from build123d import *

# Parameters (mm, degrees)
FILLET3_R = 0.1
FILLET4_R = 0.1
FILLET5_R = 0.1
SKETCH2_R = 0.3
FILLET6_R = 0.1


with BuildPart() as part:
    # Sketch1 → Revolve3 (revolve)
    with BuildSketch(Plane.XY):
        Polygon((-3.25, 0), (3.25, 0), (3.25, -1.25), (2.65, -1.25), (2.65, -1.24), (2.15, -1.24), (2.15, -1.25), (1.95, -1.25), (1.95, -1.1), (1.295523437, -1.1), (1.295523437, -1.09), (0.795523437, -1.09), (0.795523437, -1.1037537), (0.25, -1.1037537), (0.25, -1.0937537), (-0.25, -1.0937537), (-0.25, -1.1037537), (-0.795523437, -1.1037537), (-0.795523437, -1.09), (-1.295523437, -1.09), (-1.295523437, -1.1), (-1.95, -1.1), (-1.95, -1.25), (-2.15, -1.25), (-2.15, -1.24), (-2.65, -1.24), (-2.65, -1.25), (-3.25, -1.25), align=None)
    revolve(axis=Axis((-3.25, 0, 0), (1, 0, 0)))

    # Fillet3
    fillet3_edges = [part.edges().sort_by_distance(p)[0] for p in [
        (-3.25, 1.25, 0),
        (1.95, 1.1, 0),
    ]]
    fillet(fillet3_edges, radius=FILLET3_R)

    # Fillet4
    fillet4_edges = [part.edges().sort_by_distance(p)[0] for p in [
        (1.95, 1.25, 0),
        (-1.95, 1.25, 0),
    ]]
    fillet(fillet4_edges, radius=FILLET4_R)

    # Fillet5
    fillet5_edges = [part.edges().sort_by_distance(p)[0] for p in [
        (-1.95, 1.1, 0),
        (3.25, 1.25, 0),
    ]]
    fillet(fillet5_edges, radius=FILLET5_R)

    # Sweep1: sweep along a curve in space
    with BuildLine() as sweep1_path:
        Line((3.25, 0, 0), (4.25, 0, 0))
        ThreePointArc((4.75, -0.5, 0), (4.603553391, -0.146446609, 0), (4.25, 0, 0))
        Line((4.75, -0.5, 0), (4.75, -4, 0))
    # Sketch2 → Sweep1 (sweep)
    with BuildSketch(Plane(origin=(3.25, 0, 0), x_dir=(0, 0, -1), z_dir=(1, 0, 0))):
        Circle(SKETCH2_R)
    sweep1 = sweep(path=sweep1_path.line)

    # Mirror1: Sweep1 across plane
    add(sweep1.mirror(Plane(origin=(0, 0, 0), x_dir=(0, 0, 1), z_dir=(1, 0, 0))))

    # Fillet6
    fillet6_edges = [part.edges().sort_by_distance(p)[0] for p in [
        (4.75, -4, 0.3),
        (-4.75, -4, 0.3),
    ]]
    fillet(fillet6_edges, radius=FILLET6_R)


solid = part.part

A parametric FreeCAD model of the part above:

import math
import FreeCAD as App
import Part
import Sketcher
from FreeCAD import Vector
Q = App.Units.Quantity


def edges_at(feature, points):
    """Names of the edges that pass closest to the given points."""
    edges = feature.Shape.Edges
    near = lambda p: min(range(len(edges)), key=lambda i: edges[i].distToShape(Part.Vertex(*p))[0])
    return sorted({f"Edge{near(p) + 1}" for p in points})

doc = App.newDocument("Part")
body = doc.addObject("PartDesign::Body", "Body")

# Sketch on XY plane
sketch1 = body.newObject("Sketcher::SketchObject", "Sketch")
sketch1.AttachmentSupport = (doc.getObject("XY_Plane"), [""])
sketch1.MapMode = "FlatFace"
sketch1.addGeometry([
    Part.LineSegment(Vector(3.25, 0, 0), Vector(-3.25, 0, 0)),  # 0
    Part.LineSegment(Vector(-3.25, 0, 0), Vector(-3.25, -1.25, 0)),  # 1
    Part.LineSegment(Vector(-3.25, -1.25, 0), Vector(-2.65, -1.25, 0)),  # 2
    Part.LineSegment(Vector(-2.65, -1.25, 0), Vector(-2.65, -1.24, 0)),  # 3
    Part.LineSegment(Vector(-2.65, -1.24, 0), Vector(-2.15, -1.24, 0)),  # 4
    Part.LineSegment(Vector(-2.15, -1.24, 0), Vector(-2.15, -1.25, 0)),  # 5
    Part.LineSegment(Vector(-2.15, -1.25, 0), Vector(-1.95, -1.25, 0)),  # 6
    Part.LineSegment(Vector(-1.95, -1.25, 0), Vector(-1.95, -1.1, 0)),  # 7
    Part.LineSegment(Vector(-1.95, -1.1, 0), Vector(-1.296, -1.1, 0)),  # 8
    Part.LineSegment(Vector(-1.296, -1.1, 0), Vector(-1.296, -1.09, 0)),  # 9
    Part.LineSegment(Vector(-1.296, -1.09, 0), Vector(-0.796, -1.09, 0)),  # 10
    Part.LineSegment(Vector(-0.796, -1.09, 0), Vector(-0.796, -1.104, 0)),  # 11
    Part.LineSegment(Vector(-0.796, -1.104, 0), Vector(-0.25, -1.104, 0)),  # 12
    Part.LineSegment(Vector(-0.25, -1.104, 0), Vector(-0.25, -1.094, 0)),  # 13
    Part.LineSegment(Vector(-0.25, -1.094, 0), Vector(0.25, -1.094, 0)),  # 14
    Part.LineSegment(Vector(0.25, -1.094, 0), Vector(0.25, -1.104, 0)),  # 15
    Part.LineSegment(Vector(0.25, -1.104, 0), Vector(0.796, -1.104, 0)),  # 16
    Part.LineSegment(Vector(0.796, -1.104, 0), Vector(0.796, -1.09, 0)),  # 17
    Part.LineSegment(Vector(0.796, -1.09, 0), Vector(1.296, -1.09, 0)),  # 18
    Part.LineSegment(Vector(1.296, -1.09, 0), Vector(1.296, -1.1, 0)),  # 19
    Part.LineSegment(Vector(1.296, -1.1, 0), Vector(1.95, -1.1, 0)),  # 20
    Part.LineSegment(Vector(1.95, -1.1, 0), Vector(1.95, -1.25, 0)),  # 21
    Part.LineSegment(Vector(1.95, -1.25, 0), Vector(2.15, -1.25, 0)),  # 22
    Part.LineSegment(Vector(2.15, -1.25, 0), Vector(2.15, -1.24, 0)),  # 23
    Part.LineSegment(Vector(2.15, -1.24, 0), Vector(2.65, -1.24, 0)),  # 24
    Part.LineSegment(Vector(2.65, -1.24, 0), Vector(2.65, -1.25, 0)),  # 25
    Part.LineSegment(Vector(2.65, -1.25, 0), Vector(3.25, -1.25, 0)),  # 26
    Part.LineSegment(Vector(3.25, -1.25, 0), Vector(3.25, 0, 0)),  # 27
], False)
sketch1.addConstraint([
    Sketcher.Constraint("Coincident", 0, 2, 1, 1),
    Sketcher.Constraint("Coincident", 1, 2, 2, 1),
    Sketcher.Constraint("Coincident", 2, 2, 3, 1),
    Sketcher.Constraint("Coincident", 3, 2, 4, 1),
    Sketcher.Constraint("Coincident", 4, 2, 5, 1),
    Sketcher.Constraint("Coincident", 5, 2, 6, 1),
    Sketcher.Constraint("Coincident", 6, 2, 7, 1),
    Sketcher.Constraint("Coincident", 7, 2, 8, 1),
    Sketcher.Constraint("Coincident", 8, 2, 9, 1),
    Sketcher.Constraint("Coincident", 9, 2, 10, 1),
    Sketcher.Constraint("Coincident", 10, 2, 11, 1),
    Sketcher.Constraint("Coincident", 11, 2, 12, 1),
    Sketcher.Constraint("Coincident", 12, 2, 13, 1),
    Sketcher.Constraint("Coincident", 13, 2, 14, 1),
    Sketcher.Constraint("Coincident", 14, 2, 15, 1),
    Sketcher.Constraint("Coincident", 15, 2, 16, 1),
    Sketcher.Constraint("Coincident", 16, 2, 17, 1),
    Sketcher.Constraint("Coincident", 17, 2, 18, 1),
    Sketcher.Constraint("Coincident", 18, 2, 19, 1),
    Sketcher.Constraint("Coincident", 19, 2, 20, 1),
    Sketcher.Constraint("Coincident", 20, 2, 21, 1),
    Sketcher.Constraint("Coincident", 21, 2, 22, 1),
    Sketcher.Constraint("Coincident", 22, 2, 23, 1),
    Sketcher.Constraint("Coincident", 23, 2, 24, 1),
    Sketcher.Constraint("Coincident", 24, 2, 25, 1),
    Sketcher.Constraint("Coincident", 25, 2, 26, 1),
    Sketcher.Constraint("Coincident", 26, 2, 27, 1),
    Sketcher.Constraint("Coincident", 27, 2, 0, 1),
    Sketcher.Constraint("Horizontal", 0),
    Sketcher.Constraint("Vertical", 1),
    Sketcher.Constraint("Horizontal", 2),
    Sketcher.Constraint("Vertical", 3),
    Sketcher.Constraint("Horizontal", 4),
    Sketcher.Constraint("Vertical", 5),
    Sketcher.Constraint("Horizontal", 6),
    Sketcher.Constraint("Vertical", 7),
    Sketcher.Constraint("Horizontal", 8),
    Sketcher.Constraint("Vertical", 9),
    Sketcher.Constraint("Horizontal", 10),
    Sketcher.Constraint("Vertical", 11),
    Sketcher.Constraint("Horizontal", 12),
    Sketcher.Constraint("Vertical", 13),
    Sketcher.Constraint("Horizontal", 14),
    Sketcher.Constraint("Vertical", 15),
    Sketcher.Constraint("Horizontal", 16),
    Sketcher.Constraint("Vertical", 17),
    Sketcher.Constraint("Horizontal", 18),
    Sketcher.Constraint("Vertical", 19),
    Sketcher.Constraint("Horizontal", 20),
    Sketcher.Constraint("Vertical", 21),
    Sketcher.Constraint("Horizontal", 22),
    Sketcher.Constraint("Vertical", 23),
    Sketcher.Constraint("Horizontal", 24),
    Sketcher.Constraint("Vertical", 25),
    Sketcher.Constraint("Horizontal", 26),
    Sketcher.Constraint("Vertical", 27),
    Sketcher.Constraint("Symmetric", 0, 2, 27, 2, -1, 1),
    Sketcher.Constraint("Symmetric", 12, 2, 15, 2, -2),
    Sketcher.Constraint("Symmetric", 10, 2, 17, 2, -2),
    Sketcher.Constraint("Symmetric", 8, 2, 19, 2, -2),
    Sketcher.Constraint("Symmetric", 6, 2, 21, 2, -2),
    Sketcher.Constraint("Symmetric", 4, 2, 23, 2, -2),
    Sketcher.Constraint("Symmetric", 2, 2, 25, 2, -2),
    Sketcher.Constraint("Horizontal", 2, 2, 5, 2),
    Sketcher.Constraint("Equal", 4, 10),
    Sketcher.Constraint("Equal", 10, 14),
    Sketcher.Constraint("Equal", 5, 9),
    Sketcher.Constraint("Equal", 9, 13),
    Sketcher.Constraint("DistanceX", 0, 2, 0, 1, Q("6.5 mm")),
    Sketcher.Constraint("DistanceX", 2, 1, 2, 2, Q("0.6 mm")),
    Sketcher.Constraint("DistanceX", 4, 1, 4, 2, Q("0.5 mm")),
    Sketcher.Constraint("DistanceX", 6, 1, 6, 2, Q("0.2 mm")),
    Sketcher.Constraint("DistanceY", 1, 2, 1, 1, Q("1.25 mm")),
    Sketcher.Constraint("DistanceY", 3, 1, 3, 2, Q("0.01 mm")),
    Sketcher.Constraint("DistanceY", 7, 1, 7, 2, Q("0.15 mm")),
    Sketcher.Constraint("DistanceX", 8, 1, 8, 2, Q("0.654477 mm")),
    Sketcher.Constraint("DistanceY", 11, 2, 11, 1, Q("0.013754 mm")),
])
revolution = body.newObject("PartDesign::Revolution", "Revolution")
revolution.Profile = sketch1
revolution.ReferenceAxis = (sketch1, ["H_Axis"])
revolution.Angle = 360
doc.recompute()

fillet = body.newObject("PartDesign::Fillet", "Fillet")
fillet.Base = (revolution, edges_at(revolution, [(-3.25, 1.25, 0), (1.95, 1.1, 0)]))
fillet.Radius = 0.1
doc.recompute()

fillet2 = body.newObject("PartDesign::Fillet", "Fillet001")
fillet2.Base = (fillet, edges_at(fillet, [(1.95, 1.25, 0), (-1.95, 1.25, 0)]))
fillet2.Radius = 0.1
doc.recompute()

fillet3 = body.newObject("PartDesign::Fillet", "Fillet002")
fillet3.Base = (fillet2, edges_at(fillet2, [(-1.95, 1.1, 0), (3.25, 1.25, 0)]))
fillet3.Radius = 0.1

# Sketch on YZ plane
sketch2 = body.newObject("Sketcher::SketchObject", "Sketch001")
sketch2.AttachmentSupport = (doc.getObject("YZ_Plane"), [""])
sketch2.MapMode = "FlatFace"
sketch2.AttachmentOffset = App.Placement(Vector(0, 0, 3.25), App.Rotation())
sketch2.addGeometry(Part.Circle(Vector(0, 0, 0), Vector(0, 0, 1), 0.3), False)
sketch2.addConstraint([
    Sketcher.Constraint("Coincident", 0, 3, -1, 1),
    Sketcher.Constraint("Diameter", 0, Q("0.6 mm")),
])

# Sketch on XY plane
sketch3 = body.newObject("Sketcher::SketchObject", "Sketch002")
sketch3.AttachmentSupport = (doc.getObject("XY_Plane"), [""])
sketch3.MapMode = "FlatFace"
sketch3.addGeometry([
    Part.LineSegment(Vector(3.25, 0, 0), Vector(4.25, 0, 0)),
    Part.ArcOfCircle(Part.Circle(Vector(4.25, -0.5, 0), Vector(0, 0, 1), 0.5), math.radians(0), math.radians(90)),
    Part.LineSegment(Vector(4.75, -0.5, 0), Vector(4.75, -4, 0)),
], False)
sketch3.addConstraint([
    Sketcher.Constraint("Tangent", 0, 2, 1, 2),
    Sketcher.Constraint("Tangent", 1, 1, 2, 1),
    Sketcher.Constraint("Horizontal", 0),
    Sketcher.Constraint("Vertical", 2),
    Sketcher.Constraint("PointOnObject", 0, 1, -1),
    Sketcher.Constraint("Radius", 1, Q("0.5 mm")),
    Sketcher.Constraint("DistanceX", 0, 1, 0, 2, Q("1 mm")),
    Sketcher.Constraint("DistanceY", 2, 2, 2, 1, Q("3.5 mm")),
    Sketcher.Constraint("DistanceX", -1, 1, 1, 3, Q("4.25 mm")),
])
doc.recompute()

additivepipe = body.newObject("PartDesign::AdditivePipe", "AdditivePipe")
additivepipe.Profile = sketch2
additivepipe.Spine = (sketch3, ["Edge1", "Edge2", "Edge3"])
doc.recompute()

mirrored = body.newObject("PartDesign::Mirrored", "Mirrored")
mirrored.Originals = [additivepipe]
mirrored.MirrorPlane = (doc.getObject("YZ_Plane"), [""])
body.Tip = mirrored
doc.recompute()

fillet4 = body.newObject("PartDesign::Fillet", "Fillet003")
fillet4.Base = (mirrored, edges_at(mirrored, [(4.75, -4, 0.3), (-4.75, -4, 0.3)]))
fillet4.Radius = 0.1

doc.recompute()
